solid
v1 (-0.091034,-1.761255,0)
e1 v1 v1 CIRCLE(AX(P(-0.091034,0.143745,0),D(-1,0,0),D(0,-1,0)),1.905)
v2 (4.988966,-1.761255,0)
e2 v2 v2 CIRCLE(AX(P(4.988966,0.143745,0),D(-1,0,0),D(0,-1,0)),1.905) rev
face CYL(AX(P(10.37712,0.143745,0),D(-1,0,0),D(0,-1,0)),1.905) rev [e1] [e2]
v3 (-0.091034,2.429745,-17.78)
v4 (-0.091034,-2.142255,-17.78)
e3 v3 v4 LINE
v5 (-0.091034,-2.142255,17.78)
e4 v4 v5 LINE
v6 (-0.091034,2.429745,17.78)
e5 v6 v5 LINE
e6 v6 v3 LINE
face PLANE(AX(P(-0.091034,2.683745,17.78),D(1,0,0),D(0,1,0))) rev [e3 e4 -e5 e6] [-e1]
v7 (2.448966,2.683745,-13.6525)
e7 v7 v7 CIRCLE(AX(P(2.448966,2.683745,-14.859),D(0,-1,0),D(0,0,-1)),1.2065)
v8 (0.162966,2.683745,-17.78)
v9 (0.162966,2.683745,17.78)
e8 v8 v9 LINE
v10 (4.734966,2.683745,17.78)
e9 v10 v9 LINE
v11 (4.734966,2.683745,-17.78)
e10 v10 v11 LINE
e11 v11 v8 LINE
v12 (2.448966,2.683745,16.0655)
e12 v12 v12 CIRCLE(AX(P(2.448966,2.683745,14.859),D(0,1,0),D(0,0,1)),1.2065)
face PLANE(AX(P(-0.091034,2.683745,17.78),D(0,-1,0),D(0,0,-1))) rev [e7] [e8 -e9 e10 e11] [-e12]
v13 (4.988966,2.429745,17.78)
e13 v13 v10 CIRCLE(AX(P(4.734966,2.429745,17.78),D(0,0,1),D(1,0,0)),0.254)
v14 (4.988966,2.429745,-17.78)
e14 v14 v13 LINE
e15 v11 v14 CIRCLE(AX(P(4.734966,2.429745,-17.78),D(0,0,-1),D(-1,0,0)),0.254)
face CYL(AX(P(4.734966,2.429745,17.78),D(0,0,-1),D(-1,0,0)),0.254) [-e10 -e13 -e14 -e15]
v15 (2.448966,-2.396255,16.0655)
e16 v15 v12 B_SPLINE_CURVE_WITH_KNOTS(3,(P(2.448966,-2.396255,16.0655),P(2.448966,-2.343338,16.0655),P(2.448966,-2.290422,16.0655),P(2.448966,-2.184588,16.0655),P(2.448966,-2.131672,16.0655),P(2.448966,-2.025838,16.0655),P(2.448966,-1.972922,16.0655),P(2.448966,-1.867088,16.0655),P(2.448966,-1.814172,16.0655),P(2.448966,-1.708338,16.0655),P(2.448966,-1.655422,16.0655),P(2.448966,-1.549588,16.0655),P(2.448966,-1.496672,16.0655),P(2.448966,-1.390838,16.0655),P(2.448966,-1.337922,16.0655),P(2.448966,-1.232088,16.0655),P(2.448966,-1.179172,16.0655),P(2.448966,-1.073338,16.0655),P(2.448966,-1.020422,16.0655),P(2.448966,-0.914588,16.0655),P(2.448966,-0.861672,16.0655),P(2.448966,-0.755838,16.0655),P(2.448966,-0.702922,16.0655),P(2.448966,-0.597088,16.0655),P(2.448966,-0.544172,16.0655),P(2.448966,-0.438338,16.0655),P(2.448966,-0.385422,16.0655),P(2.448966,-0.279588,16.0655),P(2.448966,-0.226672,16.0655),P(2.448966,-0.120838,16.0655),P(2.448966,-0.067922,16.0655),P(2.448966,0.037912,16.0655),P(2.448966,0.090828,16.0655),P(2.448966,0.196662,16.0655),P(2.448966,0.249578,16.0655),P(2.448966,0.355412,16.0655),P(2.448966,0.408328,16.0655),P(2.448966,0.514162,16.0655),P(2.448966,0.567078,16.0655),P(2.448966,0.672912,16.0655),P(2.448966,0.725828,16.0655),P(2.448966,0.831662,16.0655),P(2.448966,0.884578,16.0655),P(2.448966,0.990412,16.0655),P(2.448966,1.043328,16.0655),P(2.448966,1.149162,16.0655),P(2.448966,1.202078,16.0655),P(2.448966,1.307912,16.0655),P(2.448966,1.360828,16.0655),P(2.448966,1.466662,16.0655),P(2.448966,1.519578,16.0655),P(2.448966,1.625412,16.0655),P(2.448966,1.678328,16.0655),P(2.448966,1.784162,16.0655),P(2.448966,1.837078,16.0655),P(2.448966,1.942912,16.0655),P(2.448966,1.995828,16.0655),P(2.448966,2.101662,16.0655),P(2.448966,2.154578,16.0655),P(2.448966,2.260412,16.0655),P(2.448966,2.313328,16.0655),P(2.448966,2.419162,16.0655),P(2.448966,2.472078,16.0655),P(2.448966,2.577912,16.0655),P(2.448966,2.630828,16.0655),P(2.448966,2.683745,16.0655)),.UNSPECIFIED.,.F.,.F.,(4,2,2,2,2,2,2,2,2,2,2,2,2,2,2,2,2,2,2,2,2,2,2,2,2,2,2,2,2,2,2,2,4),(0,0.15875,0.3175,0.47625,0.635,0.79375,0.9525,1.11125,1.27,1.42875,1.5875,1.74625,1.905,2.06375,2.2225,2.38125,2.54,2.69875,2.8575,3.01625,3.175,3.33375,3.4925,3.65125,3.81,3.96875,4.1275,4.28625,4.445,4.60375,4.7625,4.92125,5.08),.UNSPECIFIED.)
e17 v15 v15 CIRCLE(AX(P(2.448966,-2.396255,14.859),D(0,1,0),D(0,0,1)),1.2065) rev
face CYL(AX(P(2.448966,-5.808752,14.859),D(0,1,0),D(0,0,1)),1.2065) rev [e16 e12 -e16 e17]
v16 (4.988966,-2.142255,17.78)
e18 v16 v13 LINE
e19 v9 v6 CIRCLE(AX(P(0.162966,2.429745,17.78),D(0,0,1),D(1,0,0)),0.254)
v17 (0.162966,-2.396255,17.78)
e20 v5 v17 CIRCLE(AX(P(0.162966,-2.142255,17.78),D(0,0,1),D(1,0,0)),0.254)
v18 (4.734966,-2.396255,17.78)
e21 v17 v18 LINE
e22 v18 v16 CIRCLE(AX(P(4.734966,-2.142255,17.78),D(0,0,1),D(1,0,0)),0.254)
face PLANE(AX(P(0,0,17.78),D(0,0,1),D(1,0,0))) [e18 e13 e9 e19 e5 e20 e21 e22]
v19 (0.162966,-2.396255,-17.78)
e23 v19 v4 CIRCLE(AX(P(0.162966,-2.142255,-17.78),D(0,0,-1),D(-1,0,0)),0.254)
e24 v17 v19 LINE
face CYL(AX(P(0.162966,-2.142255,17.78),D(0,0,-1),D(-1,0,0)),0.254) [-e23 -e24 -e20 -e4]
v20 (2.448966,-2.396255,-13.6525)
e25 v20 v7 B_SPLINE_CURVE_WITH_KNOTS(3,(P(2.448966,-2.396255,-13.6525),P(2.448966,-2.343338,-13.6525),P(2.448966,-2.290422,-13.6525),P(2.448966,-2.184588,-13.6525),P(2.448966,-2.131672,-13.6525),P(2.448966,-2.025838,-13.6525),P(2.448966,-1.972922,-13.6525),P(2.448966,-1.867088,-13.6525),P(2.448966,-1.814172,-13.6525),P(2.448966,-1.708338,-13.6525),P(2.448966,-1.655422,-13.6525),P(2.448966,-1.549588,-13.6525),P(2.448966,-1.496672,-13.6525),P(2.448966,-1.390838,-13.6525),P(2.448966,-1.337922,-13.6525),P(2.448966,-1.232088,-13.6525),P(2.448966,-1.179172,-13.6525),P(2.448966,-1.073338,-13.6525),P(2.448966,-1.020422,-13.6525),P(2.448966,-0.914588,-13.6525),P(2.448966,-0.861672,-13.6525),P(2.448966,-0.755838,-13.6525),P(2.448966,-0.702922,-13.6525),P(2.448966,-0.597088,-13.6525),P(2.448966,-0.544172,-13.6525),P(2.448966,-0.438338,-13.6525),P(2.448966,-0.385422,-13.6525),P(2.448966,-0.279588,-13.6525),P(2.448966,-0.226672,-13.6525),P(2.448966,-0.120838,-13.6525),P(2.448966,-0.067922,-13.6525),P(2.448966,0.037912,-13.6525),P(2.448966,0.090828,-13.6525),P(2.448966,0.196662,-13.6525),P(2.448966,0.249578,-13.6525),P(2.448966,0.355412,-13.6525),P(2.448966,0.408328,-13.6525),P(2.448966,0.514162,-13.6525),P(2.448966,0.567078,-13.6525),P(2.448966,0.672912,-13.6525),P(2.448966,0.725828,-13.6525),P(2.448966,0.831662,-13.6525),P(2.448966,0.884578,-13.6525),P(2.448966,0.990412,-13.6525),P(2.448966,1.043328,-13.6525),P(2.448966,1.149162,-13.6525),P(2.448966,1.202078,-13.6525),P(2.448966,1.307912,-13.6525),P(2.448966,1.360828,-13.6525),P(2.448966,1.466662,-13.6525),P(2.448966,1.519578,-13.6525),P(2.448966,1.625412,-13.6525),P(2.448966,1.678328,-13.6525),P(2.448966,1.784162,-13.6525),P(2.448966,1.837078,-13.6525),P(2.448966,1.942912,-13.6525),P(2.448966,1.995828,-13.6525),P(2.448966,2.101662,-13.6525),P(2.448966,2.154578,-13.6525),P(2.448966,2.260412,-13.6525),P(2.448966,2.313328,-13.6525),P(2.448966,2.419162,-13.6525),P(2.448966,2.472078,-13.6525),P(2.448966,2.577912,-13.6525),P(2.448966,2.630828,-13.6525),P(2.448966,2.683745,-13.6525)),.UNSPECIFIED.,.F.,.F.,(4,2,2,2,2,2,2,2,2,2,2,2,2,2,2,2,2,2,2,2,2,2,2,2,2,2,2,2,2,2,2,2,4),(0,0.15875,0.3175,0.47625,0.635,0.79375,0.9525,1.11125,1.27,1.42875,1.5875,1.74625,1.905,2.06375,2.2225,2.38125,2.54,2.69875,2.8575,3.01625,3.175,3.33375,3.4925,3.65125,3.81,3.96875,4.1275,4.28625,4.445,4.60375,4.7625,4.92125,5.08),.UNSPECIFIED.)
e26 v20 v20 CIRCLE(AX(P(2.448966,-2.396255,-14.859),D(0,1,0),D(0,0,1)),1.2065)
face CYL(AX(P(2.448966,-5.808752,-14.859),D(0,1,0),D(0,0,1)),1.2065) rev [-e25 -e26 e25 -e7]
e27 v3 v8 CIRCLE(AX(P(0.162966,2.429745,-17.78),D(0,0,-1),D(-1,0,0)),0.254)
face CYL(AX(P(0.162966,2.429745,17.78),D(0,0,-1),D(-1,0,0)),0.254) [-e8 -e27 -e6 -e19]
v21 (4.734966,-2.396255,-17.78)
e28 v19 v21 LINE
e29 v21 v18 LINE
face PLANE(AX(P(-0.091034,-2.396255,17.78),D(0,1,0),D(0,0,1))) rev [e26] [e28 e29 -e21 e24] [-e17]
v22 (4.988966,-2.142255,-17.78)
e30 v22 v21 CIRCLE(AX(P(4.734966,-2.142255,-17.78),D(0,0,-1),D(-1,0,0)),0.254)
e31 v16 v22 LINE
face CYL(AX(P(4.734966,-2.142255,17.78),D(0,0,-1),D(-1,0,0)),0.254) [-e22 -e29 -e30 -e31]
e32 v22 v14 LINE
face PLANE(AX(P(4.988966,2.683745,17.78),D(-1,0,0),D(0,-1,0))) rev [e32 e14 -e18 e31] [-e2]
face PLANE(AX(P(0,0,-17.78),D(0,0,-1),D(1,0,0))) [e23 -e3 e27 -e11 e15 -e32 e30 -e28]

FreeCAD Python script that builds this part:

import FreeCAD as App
import Part
import Sketcher

V = App.Vector
Q = App.Units.Quantity


def edges_at(feature, points):
    """Names of the edges that pass closest to the given points."""
    edges = feature.Shape.Edges
    near = lambda p: min(range(len(edges)), key=lambda i: edges[i].distToShape(Part.Vertex(*p))[0])
    return sorted({f"Edge{near(p) + 1}" for p in points})

doc = App.newDocument("Part")
body = doc.addObject("PartDesign::Body", "Body")

# Sketch on XY plane
sketch1 = body.newObject("Sketcher::SketchObject", "Sketch")
sketch1.AttachmentSupport = (doc.getObject("XY_Plane"), [""])
sketch1.MapMode = "FlatFace"
sketch1.addGeometry([
    Part.LineSegment(V(0, 3, 0), V(0, -2, 0)),
    Part.LineSegment(V(0, -2, 0), V(5, -2, 0)),
    Part.LineSegment(V(5, -2, 0), V(5, 3, 0)),
    Part.LineSegment(V(5, 3, 0), V(0, 3, 0)),
], False)
sketch1.addConstraint([
    Sketcher.Constraint("Coincident", 0, 2, 1, 1),
    Sketcher.Constraint("Coincident", 1, 2, 2, 1),
    Sketcher.Constraint("Coincident", 2, 2, 3, 1),
    Sketcher.Constraint("Coincident", 3, 2, 0, 1),
    Sketcher.Constraint("Vertical", 0),
    Sketcher.Constraint("Horizontal", 1),
    Sketcher.Constraint("Vertical", 2),
    Sketcher.Constraint("Horizontal", 3),
    Sketcher.Constraint("Equal", 3, 0),
    Sketcher.Constraint("DistanceX", 1, 1, 1, 2, Q("0.2 in")),
    Sketcher.Constraint("DistanceX", 0, 2, -1, 1, Q("0.091034 mm")),
    Sketcher.Constraint("DistanceY", 0, 2, -1, 1, Q("2.396255 mm")),
])
pad1 = body.newObject("PartDesign::Pad", "Pad")
pad1.Profile = sketch1
pad1.Length = Q("0.7 in")

# Sketch on XZ plane
sketch2 = body.newObject("Sketcher::SketchObject", "Sketch001")
sketch2.AttachmentSupport = (doc.getObject("XZ_Plane"), [""])
sketch2.MapMode = "FlatFace"
sketch2.AttachmentOffset = App.Placement(V(0, 0, -2.683745), App.Rotation())
sketch2.addGeometry(Part.Circle(V(2.4, 14.9, 0), V(0, 0, 1), 1.2), False)
sketch2.addConstraint([
    Sketcher.Constraint("Diameter", 0, Q("0.095 in")),
    Sketcher.Constraint("DistanceY", -1, 1, 0, 3, Q("0.585 in")),
    Sketcher.Constraint("DistanceX", -1, 1, 0, 3, Q("2.448966 mm")),
])
pocket1 = body.newObject("PartDesign::Pocket", "Pocket")
pocket1.Profile = sketch2
pocket1.Length = Q("0.2 in")
pocket1.Reversed = True
doc.recompute()

mirrored = body.newObject("PartDesign::Mirrored", "Mirrored")
mirrored.Originals = [pad1, pocket1]
mirrored.MirrorPlane = (doc.getObject("XY_Plane"), [""])
body.Tip = mirrored
doc.recompute()

fillet = body.newObject("PartDesign::Fillet", "Fillet")
fillet.Base = (mirrored, edges_at(mirrored, [
    (-0.091, 2.684, 0),
    (4.989, 2.684, 0),
    (4.989, -2.396, 0),
    (-0.091, -2.396, 0),
]))
fillet.Radius = Q("0.01 in")

# Sketch on YZ plane
sketch3 = body.newObject("Sketcher::SketchObject", "Sketch002")
sketch3.AttachmentSupport = (doc.getObject("YZ_Plane"), [""])
sketch3.MapMode = "FlatFace"
sketch3.AttachmentOffset = App.Placement(V(0, 0, -0.091034), App.Rotation())
sketch3.addGeometry(Part.Circle(V(0.1, 0, 0), V(0, 0, 1), 1.9), False)
sketch3.addConstraint([
    Sketcher.Constraint("PointOnObject", 0, 3, -1),
    Sketcher.Constraint("Diameter", 0, Q("0.15 in")),
    Sketcher.Constraint("DistanceX", -1, 1, 0, 3, Q("0.143745 mm")),
])
pocket2 = body.newObject("PartDesign::Pocket", "Pocket001")
pocket2.Profile = sketch3
pocket2.Length = Q("0.2 in")
pocket2.Reversed = True

doc.recompute()
